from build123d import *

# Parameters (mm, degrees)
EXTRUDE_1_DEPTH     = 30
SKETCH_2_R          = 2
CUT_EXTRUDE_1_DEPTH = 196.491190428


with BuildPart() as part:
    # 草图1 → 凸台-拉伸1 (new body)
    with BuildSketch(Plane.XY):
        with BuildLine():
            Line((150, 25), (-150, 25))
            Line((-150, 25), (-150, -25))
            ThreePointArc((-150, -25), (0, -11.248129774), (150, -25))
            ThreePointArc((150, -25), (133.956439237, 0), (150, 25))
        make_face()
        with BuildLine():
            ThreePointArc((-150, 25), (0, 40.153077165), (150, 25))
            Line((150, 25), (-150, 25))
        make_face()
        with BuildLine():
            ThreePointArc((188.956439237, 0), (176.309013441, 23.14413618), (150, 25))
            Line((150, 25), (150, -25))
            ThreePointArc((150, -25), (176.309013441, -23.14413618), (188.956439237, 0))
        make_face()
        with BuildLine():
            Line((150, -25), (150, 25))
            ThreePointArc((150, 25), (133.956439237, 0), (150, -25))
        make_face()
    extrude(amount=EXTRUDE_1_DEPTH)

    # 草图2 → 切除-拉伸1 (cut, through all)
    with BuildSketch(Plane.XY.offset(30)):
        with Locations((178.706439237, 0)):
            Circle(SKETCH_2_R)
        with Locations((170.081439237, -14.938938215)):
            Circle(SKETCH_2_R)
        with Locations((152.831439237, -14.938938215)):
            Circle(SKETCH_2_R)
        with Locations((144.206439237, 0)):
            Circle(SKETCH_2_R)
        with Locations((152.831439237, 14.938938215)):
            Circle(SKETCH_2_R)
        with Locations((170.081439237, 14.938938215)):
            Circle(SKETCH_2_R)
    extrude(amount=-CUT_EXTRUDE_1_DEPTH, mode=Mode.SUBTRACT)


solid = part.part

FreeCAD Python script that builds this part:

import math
import FreeCAD as App
import Part
import Sketcher
Q = App.Units.Quantity

doc = App.newDocument("Part")
body = doc.addObject("PartDesign::Body", "Body")

# Sketch on XY plane
sketch1 = doc.addObject("Sketcher::SketchObject", "Sketch")
body.addObject(sketch1)
sketch1.AttachmentSupport = (doc.XY_Plane, [""])
sketch1.MapMode = "FlatFace"
sketch1.addGeometry([
    Part.LineSegment(App.Vector(-150, 25, 0), App.Vector(-150, -25, 0)),  # 0
    Part.ArcOfCircle(Part.Circle(App.Vector(0, -836.194612, 0), App.Vector(0, 0, 1), 824.946482), math.radians(79.523631), math.radians(100.476369)),  # 1
    Part.ArcOfCircle(Part.Circle(App.Vector(161.456439, 0, 0), App.Vector(0, 0, 1), 27.5), math.radians(-114.619977), math.radians(0)),  # 2
    Part.ArcOfCircle(Part.Circle(App.Vector(161.456439, 0, 0), App.Vector(0, 0, 1), 27.5), math.radians(0), math.radians(114.619977)),  # 3
    Part.ArcOfCircle(Part.Circle(App.Vector(0, -709.846923, 0), App.Vector(0, 0, 1), 750), math.radians(78.463041), math.radians(101.536959)),  # 4
], False)
sketch1.addConstraint([
    Sketcher.Constraint("Coincident", 0, 2, 1, 2),
    Sketcher.Constraint("Coincident", 1, 1, 2, 1),
    Sketcher.Constraint("Tangent", 2, 2, 3, 1),
    Sketcher.Constraint("Coincident", 3, 2, 4, 1),
    Sketcher.Constraint("Coincident", 4, 2, 0, 1),
    Sketcher.Constraint("Vertical", 0),
    Sketcher.Constraint("Equal", 2, 3),
    Sketcher.Constraint("Symmetric", 0, 2, 3, 2, -1, 1),
    Sketcher.Constraint("Symmetric", 1, 1, 4, 2, -1, 1),
    Sketcher.Constraint("PointOnObject", 1, 3, -2),
    Sketcher.Constraint("PointOnObject", 2, 2, -1),
    Sketcher.Constraint("Radius", 4, Q("750 mm")),
    Sketcher.Constraint("Radius", 2, Q("27.5 mm")),
    Sketcher.Constraint("DistanceY", 0, 2, 0, 1, Q("50 mm")),
    Sketcher.Constraint("DistanceX", 0, 2, -1, 1, Q("150 mm")),
    Sketcher.Constraint("Radius", 1, Q("824.946482 mm")),
])
pad1 = doc.addObject("PartDesign::Pad", "Pad")
body.addObject(pad1)
pad1.Profile = sketch1
pad1.Length = 30

# Sketch on XY plane
sketch2 = doc.addObject("Sketcher::SketchObject", "Sketch001")
body.addObject(sketch2)
sketch2.AttachmentSupport = (doc.XY_Plane, [""])
sketch2.MapMode = "FlatFace"
sketch2.AttachmentOffset = App.Placement(App.Vector(0, 0, 30), App.Rotation())
sketch2.addGeometry([
    Part.Circle(App.Vector(178.706439, 0, 0), App.Vector(0, 0, 1), 2),  # 0
    Part.Circle(App.Vector(170.081439, -14.938938, 0), App.Vector(0, 0, 1), 2),  # 1
    Part.Circle(App.Vector(152.831439, -14.938938, 0), App.Vector(0, 0, 1), 2),  # 2
    Part.Circle(App.Vector(144.206439, 0, 0), App.Vector(0, 0, 1), 2),  # 3
    Part.Circle(App.Vector(152.831439, 14.938938, 0), App.Vector(0, 0, 1), 2),  # 4
    Part.Circle(App.Vector(170.081439, 14.938938, 0), App.Vector(0, 0, 1), 2),  # 5
], False)
sketch2.addConstraint([
    Sketcher.Constraint("Equal", 0, 1),
    Sketcher.Constraint("Equal", 1, 2),
    Sketcher.Constraint("Equal", 2, 3),
    Sketcher.Constraint("Equal", 3, 4),
    Sketcher.Constraint("Equal", 4, 5),
    Sketcher.Constraint("Symmetric", 2, 3, 4, 3, -1),
    Sketcher.Constraint("Symmetric", 1, 3, 5, 3, -1),
    Sketcher.Constraint("PointOnObject", 0, 3, -1),
    Sketcher.Constraint("PointOnObject", 3, 3, -1),
    Sketcher.Constraint("Horizontal", 1, 3, 2, 3),
    Sketcher.Constraint("Diameter", 0, Q("4 mm")),
    Sketcher.Constraint("DistanceX", 3, 3, 0, 3, Q("34.5 mm")),
    Sketcher.Constraint("DistanceX", 2, 3, 1, 3, Q("17.25 mm")),
    Sketcher.Constraint("DistanceX", 1, 3, 0, 3, Q("8.625 mm")),
    Sketcher.Constraint("DistanceX", -1, 1, 0, 3, Q("178.706439 mm")),
    Sketcher.Constraint("DistanceY", 1, 3, -1, 1, Q("14.938938 mm")),
])
pocket1 = doc.addObject("PartDesign::Pocket", "Pocket")
body.addObject(pocket1)
pocket1.Profile = sketch2
pocket1.Type = "ThroughAll"

doc.recompute()
